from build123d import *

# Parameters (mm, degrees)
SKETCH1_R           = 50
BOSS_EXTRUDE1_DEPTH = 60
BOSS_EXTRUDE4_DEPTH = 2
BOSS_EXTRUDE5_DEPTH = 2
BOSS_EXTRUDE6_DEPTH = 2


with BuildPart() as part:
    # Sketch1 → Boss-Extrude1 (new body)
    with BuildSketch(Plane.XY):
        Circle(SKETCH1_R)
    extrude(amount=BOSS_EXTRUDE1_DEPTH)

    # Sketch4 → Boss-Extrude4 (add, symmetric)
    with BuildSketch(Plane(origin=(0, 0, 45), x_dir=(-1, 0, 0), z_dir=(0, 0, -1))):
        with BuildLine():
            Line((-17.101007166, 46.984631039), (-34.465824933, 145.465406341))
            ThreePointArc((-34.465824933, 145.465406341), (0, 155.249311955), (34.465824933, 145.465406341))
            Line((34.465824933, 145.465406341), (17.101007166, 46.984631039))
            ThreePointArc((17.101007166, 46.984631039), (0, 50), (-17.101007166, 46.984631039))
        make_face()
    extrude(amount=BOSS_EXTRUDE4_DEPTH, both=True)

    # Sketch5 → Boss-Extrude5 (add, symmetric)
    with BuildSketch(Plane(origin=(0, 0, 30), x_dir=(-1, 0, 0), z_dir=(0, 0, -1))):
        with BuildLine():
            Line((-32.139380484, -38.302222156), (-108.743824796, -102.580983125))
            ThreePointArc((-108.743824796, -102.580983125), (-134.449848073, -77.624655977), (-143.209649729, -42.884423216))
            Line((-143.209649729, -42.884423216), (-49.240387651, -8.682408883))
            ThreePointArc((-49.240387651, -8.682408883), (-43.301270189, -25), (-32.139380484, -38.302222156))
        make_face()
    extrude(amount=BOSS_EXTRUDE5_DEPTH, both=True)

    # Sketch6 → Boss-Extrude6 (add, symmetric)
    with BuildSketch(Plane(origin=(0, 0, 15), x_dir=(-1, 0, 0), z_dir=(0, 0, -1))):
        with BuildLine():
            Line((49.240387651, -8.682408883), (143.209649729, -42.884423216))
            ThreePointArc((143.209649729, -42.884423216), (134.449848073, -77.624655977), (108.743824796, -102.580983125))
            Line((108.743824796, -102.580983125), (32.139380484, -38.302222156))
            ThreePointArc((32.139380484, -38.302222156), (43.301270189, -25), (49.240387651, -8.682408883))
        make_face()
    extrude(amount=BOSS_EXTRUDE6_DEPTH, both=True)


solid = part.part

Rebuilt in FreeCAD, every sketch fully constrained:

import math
import FreeCAD as App
import Part
import Sketcher

V = App.Vector
Q = App.Units.Quantity

doc = App.newDocument("Part")
body = doc.addObject("PartDesign::Body", "Body")

# Sketch on XY plane
sketch1 = body.newObject("Sketcher::SketchObject", "Sketch")
sketch1.AttachmentSupport = (doc.getObject("XY_Plane"), [""])
sketch1.MapMode = "FlatFace"
sketch1.addGeometry(Part.Circle(V(0, 0, 0), V(0, 0, 1), 50), False)
sketch1.addConstraint([
    Sketcher.Constraint("Coincident", 0, 3, -1, 1),
    Sketcher.Constraint("Diameter", 0, Q("100 mm")),
])
pad1 = body.newObject("PartDesign::Pad", "Pad")
pad1.Profile = sketch1
pad1.Length = 60

# Sketch on XY plane
sketch2 = body.newObject("Sketcher::SketchObject", "Sketch001")
sketch2.AttachmentSupport = (doc.getObject("XY_Plane"), [""])
sketch2.MapMode = "FlatFace"
sketch2.AttachmentOffset = App.Placement(V(0, 0, 45), App.Rotation())
sketch2.addGeometry([
    Part.LineSegment(V(34.465825, 145.465406, 0), V(17.101007, 46.984631, 0)),
    Part.ArcOfCircle(Part.Circle(V(0, 0, 0), V(0, 0, 1), 50), math.radians(70), math.radians(110)),
    Part.LineSegment(V(-17.101007, 46.984631, 0), V(-34.465825, 145.465406, 0)),
    Part.ArcOfCircle(Part.Circle(V(0, 89.650872, 0), V(0, 0, 1), 65.59844), math.radians(58.30441), math.radians(121.69559)),
], False)
sketch2.addConstraint([
    Sketcher.Constraint("Coincident", 0, 2, 1, 1),
    Sketcher.Constraint("Coincident", 1, 2, 2, 1),
    Sketcher.Constraint("Coincident", 2, 2, 3, 2),
    Sketcher.Constraint("Coincident", 3, 1, 0, 1),
    Sketcher.Constraint("Coincident", 1, 3, -1, 1),
    Sketcher.Constraint("Symmetric", 2, 2, 3, 1, -2),
    Sketcher.Constraint("Horizontal", 0, 2, 1, 2),
    Sketcher.Constraint("Radius", 1, Q("50 mm")),
    Sketcher.Constraint("Angle", 0, Q("-100 deg")),
    Sketcher.Constraint("Distance", 0, Q("100 mm")),
    Sketcher.Constraint("Radius", 3, Q("65.59844 mm")),
    Sketcher.Constraint("DistanceY", -1, 1, 3, 3, Q("89.650872 mm")),
])
pad2 = body.newObject("PartDesign::Pad", "Pad001")
pad2.Profile = sketch2
pad2.Length = 4
pad2.Midplane = True

# Sketch on XY plane
sketch3 = body.newObject("Sketcher::SketchObject", "Sketch002")
sketch3.AttachmentSupport = (doc.getObject("XY_Plane"), [""])
sketch3.MapMode = "FlatFace"
sketch3.AttachmentOffset = App.Placement(V(0, 0, 30), App.Rotation())
sketch3.addGeometry([
    Part.LineSegment(V(108.743825, -102.580983, 0), V(32.13938, -38.302222, 0)),
    Part.ArcOfCircle(Part.Circle(V(0, 0, 0), V(0, 0, 1), 50), math.radians(-50), math.radians(-10)),
    Part.LineSegment(V(49.240388, -8.682409, 0), V(143.20965, -42.884423, 0)),
    Part.ArcOfCircle(Part.Circle(V(77.639932, -44.825436, 0), V(0, 0, 1), 65.59844), math.radians(-61.69559), math.radians(1.69559)),
], False)
sketch3.addConstraint([
    Sketcher.Constraint("Coincident", 0, 2, 1, 1),
    Sketcher.Constraint("Coincident", 1, 2, 2, 1),
    Sketcher.Constraint("Coincident", 2, 2, 3, 2),
    Sketcher.Constraint("Coincident", 3, 1, 0, 1),
    Sketcher.Constraint("Coincident", 1, 3, -1, 1),
    Sketcher.Constraint("Equal", 0, 2),
    Sketcher.Constraint("Radius", 1, Q("50 mm")),
    Sketcher.Constraint("Angle", 0, Q("140 deg")),
    Sketcher.Constraint("Angle", 2, Q("-20 deg")),
    Sketcher.Constraint("Distance", 0, Q("100 mm")),
    Sketcher.Constraint("Radius", 3, Q("65.59844 mm")),
    Sketcher.Constraint("DistanceY", 2, 2, 0, 2, Q("4.582201 mm")),
    Sketcher.Constraint("DistanceX", -1, 1, 0, 2, Q("32.13938 mm")),
])
pad3 = body.newObject("PartDesign::Pad", "Pad002")
pad3.Profile = sketch3
pad3.Length = 4
pad3.Midplane = True

# Sketch on XY plane
sketch4 = body.newObject("Sketcher::SketchObject", "Sketch003")
sketch4.AttachmentSupport = (doc.getObject("XY_Plane"), [""])
sketch4.MapMode = "FlatFace"
sketch4.AttachmentOffset = App.Placement(V(0, 0, 15), App.Rotation())
sketch4.addGeometry([
    Part.LineSegment(V(-143.20965, -42.884423, 0), V(-49.240388, -8.682409, 0)),
    Part.ArcOfCircle(Part.Circle(V(0, 0, 0), V(0, 0, 1), 50), math.radians(-170), math.radians(-130)),
    Part.LineSegment(V(-32.13938, -38.302222, 0), V(-108.743825, -102.580983, 0)),
    Part.ArcOfCircle(Part.Circle(V(-77.639932, -44.825436, 0), V(0, 0, 1), 65.59844), math.radians(178.30441), math.radians(241.69559)),
], False)
sketch4.addConstraint([
    Sketcher.Constraint("Coincident", 0, 2, 1, 1),
    Sketcher.Constraint("Coincident", 1, 2, 2, 1),
    Sketcher.Constraint("Coincident", 2, 2, 3, 2),
    Sketcher.Constraint("Coincident", 3, 1, 0, 1),
    Sketcher.Constraint("Coincident", 1, 3, -1, 1),
    Sketcher.Constraint("Equal", 0, 2),
    Sketcher.Constraint("Radius", 1, Q("50 mm")),
    Sketcher.Constraint("Angle", 0, Q("20 deg")),
    Sketcher.Constraint("Angle", 2, Q("-140 deg")),
    Sketcher.Constraint("Distance", 0, Q("100 mm")),
    Sketcher.Constraint("Radius", 3, Q("65.59844 mm")),
    Sketcher.Constraint("DistanceY", 3, 1, 1, 2, Q("4.582201 mm")),
    Sketcher.Constraint("DistanceY", 0, 2, -1, 1, Q("8.682409 mm")),
])
pad4 = body.newObject("PartDesign::Pad", "Pad003")
pad4.Profile = sketch4
pad4.Length = 4
pad4.Midplane = True

doc.recompute()
